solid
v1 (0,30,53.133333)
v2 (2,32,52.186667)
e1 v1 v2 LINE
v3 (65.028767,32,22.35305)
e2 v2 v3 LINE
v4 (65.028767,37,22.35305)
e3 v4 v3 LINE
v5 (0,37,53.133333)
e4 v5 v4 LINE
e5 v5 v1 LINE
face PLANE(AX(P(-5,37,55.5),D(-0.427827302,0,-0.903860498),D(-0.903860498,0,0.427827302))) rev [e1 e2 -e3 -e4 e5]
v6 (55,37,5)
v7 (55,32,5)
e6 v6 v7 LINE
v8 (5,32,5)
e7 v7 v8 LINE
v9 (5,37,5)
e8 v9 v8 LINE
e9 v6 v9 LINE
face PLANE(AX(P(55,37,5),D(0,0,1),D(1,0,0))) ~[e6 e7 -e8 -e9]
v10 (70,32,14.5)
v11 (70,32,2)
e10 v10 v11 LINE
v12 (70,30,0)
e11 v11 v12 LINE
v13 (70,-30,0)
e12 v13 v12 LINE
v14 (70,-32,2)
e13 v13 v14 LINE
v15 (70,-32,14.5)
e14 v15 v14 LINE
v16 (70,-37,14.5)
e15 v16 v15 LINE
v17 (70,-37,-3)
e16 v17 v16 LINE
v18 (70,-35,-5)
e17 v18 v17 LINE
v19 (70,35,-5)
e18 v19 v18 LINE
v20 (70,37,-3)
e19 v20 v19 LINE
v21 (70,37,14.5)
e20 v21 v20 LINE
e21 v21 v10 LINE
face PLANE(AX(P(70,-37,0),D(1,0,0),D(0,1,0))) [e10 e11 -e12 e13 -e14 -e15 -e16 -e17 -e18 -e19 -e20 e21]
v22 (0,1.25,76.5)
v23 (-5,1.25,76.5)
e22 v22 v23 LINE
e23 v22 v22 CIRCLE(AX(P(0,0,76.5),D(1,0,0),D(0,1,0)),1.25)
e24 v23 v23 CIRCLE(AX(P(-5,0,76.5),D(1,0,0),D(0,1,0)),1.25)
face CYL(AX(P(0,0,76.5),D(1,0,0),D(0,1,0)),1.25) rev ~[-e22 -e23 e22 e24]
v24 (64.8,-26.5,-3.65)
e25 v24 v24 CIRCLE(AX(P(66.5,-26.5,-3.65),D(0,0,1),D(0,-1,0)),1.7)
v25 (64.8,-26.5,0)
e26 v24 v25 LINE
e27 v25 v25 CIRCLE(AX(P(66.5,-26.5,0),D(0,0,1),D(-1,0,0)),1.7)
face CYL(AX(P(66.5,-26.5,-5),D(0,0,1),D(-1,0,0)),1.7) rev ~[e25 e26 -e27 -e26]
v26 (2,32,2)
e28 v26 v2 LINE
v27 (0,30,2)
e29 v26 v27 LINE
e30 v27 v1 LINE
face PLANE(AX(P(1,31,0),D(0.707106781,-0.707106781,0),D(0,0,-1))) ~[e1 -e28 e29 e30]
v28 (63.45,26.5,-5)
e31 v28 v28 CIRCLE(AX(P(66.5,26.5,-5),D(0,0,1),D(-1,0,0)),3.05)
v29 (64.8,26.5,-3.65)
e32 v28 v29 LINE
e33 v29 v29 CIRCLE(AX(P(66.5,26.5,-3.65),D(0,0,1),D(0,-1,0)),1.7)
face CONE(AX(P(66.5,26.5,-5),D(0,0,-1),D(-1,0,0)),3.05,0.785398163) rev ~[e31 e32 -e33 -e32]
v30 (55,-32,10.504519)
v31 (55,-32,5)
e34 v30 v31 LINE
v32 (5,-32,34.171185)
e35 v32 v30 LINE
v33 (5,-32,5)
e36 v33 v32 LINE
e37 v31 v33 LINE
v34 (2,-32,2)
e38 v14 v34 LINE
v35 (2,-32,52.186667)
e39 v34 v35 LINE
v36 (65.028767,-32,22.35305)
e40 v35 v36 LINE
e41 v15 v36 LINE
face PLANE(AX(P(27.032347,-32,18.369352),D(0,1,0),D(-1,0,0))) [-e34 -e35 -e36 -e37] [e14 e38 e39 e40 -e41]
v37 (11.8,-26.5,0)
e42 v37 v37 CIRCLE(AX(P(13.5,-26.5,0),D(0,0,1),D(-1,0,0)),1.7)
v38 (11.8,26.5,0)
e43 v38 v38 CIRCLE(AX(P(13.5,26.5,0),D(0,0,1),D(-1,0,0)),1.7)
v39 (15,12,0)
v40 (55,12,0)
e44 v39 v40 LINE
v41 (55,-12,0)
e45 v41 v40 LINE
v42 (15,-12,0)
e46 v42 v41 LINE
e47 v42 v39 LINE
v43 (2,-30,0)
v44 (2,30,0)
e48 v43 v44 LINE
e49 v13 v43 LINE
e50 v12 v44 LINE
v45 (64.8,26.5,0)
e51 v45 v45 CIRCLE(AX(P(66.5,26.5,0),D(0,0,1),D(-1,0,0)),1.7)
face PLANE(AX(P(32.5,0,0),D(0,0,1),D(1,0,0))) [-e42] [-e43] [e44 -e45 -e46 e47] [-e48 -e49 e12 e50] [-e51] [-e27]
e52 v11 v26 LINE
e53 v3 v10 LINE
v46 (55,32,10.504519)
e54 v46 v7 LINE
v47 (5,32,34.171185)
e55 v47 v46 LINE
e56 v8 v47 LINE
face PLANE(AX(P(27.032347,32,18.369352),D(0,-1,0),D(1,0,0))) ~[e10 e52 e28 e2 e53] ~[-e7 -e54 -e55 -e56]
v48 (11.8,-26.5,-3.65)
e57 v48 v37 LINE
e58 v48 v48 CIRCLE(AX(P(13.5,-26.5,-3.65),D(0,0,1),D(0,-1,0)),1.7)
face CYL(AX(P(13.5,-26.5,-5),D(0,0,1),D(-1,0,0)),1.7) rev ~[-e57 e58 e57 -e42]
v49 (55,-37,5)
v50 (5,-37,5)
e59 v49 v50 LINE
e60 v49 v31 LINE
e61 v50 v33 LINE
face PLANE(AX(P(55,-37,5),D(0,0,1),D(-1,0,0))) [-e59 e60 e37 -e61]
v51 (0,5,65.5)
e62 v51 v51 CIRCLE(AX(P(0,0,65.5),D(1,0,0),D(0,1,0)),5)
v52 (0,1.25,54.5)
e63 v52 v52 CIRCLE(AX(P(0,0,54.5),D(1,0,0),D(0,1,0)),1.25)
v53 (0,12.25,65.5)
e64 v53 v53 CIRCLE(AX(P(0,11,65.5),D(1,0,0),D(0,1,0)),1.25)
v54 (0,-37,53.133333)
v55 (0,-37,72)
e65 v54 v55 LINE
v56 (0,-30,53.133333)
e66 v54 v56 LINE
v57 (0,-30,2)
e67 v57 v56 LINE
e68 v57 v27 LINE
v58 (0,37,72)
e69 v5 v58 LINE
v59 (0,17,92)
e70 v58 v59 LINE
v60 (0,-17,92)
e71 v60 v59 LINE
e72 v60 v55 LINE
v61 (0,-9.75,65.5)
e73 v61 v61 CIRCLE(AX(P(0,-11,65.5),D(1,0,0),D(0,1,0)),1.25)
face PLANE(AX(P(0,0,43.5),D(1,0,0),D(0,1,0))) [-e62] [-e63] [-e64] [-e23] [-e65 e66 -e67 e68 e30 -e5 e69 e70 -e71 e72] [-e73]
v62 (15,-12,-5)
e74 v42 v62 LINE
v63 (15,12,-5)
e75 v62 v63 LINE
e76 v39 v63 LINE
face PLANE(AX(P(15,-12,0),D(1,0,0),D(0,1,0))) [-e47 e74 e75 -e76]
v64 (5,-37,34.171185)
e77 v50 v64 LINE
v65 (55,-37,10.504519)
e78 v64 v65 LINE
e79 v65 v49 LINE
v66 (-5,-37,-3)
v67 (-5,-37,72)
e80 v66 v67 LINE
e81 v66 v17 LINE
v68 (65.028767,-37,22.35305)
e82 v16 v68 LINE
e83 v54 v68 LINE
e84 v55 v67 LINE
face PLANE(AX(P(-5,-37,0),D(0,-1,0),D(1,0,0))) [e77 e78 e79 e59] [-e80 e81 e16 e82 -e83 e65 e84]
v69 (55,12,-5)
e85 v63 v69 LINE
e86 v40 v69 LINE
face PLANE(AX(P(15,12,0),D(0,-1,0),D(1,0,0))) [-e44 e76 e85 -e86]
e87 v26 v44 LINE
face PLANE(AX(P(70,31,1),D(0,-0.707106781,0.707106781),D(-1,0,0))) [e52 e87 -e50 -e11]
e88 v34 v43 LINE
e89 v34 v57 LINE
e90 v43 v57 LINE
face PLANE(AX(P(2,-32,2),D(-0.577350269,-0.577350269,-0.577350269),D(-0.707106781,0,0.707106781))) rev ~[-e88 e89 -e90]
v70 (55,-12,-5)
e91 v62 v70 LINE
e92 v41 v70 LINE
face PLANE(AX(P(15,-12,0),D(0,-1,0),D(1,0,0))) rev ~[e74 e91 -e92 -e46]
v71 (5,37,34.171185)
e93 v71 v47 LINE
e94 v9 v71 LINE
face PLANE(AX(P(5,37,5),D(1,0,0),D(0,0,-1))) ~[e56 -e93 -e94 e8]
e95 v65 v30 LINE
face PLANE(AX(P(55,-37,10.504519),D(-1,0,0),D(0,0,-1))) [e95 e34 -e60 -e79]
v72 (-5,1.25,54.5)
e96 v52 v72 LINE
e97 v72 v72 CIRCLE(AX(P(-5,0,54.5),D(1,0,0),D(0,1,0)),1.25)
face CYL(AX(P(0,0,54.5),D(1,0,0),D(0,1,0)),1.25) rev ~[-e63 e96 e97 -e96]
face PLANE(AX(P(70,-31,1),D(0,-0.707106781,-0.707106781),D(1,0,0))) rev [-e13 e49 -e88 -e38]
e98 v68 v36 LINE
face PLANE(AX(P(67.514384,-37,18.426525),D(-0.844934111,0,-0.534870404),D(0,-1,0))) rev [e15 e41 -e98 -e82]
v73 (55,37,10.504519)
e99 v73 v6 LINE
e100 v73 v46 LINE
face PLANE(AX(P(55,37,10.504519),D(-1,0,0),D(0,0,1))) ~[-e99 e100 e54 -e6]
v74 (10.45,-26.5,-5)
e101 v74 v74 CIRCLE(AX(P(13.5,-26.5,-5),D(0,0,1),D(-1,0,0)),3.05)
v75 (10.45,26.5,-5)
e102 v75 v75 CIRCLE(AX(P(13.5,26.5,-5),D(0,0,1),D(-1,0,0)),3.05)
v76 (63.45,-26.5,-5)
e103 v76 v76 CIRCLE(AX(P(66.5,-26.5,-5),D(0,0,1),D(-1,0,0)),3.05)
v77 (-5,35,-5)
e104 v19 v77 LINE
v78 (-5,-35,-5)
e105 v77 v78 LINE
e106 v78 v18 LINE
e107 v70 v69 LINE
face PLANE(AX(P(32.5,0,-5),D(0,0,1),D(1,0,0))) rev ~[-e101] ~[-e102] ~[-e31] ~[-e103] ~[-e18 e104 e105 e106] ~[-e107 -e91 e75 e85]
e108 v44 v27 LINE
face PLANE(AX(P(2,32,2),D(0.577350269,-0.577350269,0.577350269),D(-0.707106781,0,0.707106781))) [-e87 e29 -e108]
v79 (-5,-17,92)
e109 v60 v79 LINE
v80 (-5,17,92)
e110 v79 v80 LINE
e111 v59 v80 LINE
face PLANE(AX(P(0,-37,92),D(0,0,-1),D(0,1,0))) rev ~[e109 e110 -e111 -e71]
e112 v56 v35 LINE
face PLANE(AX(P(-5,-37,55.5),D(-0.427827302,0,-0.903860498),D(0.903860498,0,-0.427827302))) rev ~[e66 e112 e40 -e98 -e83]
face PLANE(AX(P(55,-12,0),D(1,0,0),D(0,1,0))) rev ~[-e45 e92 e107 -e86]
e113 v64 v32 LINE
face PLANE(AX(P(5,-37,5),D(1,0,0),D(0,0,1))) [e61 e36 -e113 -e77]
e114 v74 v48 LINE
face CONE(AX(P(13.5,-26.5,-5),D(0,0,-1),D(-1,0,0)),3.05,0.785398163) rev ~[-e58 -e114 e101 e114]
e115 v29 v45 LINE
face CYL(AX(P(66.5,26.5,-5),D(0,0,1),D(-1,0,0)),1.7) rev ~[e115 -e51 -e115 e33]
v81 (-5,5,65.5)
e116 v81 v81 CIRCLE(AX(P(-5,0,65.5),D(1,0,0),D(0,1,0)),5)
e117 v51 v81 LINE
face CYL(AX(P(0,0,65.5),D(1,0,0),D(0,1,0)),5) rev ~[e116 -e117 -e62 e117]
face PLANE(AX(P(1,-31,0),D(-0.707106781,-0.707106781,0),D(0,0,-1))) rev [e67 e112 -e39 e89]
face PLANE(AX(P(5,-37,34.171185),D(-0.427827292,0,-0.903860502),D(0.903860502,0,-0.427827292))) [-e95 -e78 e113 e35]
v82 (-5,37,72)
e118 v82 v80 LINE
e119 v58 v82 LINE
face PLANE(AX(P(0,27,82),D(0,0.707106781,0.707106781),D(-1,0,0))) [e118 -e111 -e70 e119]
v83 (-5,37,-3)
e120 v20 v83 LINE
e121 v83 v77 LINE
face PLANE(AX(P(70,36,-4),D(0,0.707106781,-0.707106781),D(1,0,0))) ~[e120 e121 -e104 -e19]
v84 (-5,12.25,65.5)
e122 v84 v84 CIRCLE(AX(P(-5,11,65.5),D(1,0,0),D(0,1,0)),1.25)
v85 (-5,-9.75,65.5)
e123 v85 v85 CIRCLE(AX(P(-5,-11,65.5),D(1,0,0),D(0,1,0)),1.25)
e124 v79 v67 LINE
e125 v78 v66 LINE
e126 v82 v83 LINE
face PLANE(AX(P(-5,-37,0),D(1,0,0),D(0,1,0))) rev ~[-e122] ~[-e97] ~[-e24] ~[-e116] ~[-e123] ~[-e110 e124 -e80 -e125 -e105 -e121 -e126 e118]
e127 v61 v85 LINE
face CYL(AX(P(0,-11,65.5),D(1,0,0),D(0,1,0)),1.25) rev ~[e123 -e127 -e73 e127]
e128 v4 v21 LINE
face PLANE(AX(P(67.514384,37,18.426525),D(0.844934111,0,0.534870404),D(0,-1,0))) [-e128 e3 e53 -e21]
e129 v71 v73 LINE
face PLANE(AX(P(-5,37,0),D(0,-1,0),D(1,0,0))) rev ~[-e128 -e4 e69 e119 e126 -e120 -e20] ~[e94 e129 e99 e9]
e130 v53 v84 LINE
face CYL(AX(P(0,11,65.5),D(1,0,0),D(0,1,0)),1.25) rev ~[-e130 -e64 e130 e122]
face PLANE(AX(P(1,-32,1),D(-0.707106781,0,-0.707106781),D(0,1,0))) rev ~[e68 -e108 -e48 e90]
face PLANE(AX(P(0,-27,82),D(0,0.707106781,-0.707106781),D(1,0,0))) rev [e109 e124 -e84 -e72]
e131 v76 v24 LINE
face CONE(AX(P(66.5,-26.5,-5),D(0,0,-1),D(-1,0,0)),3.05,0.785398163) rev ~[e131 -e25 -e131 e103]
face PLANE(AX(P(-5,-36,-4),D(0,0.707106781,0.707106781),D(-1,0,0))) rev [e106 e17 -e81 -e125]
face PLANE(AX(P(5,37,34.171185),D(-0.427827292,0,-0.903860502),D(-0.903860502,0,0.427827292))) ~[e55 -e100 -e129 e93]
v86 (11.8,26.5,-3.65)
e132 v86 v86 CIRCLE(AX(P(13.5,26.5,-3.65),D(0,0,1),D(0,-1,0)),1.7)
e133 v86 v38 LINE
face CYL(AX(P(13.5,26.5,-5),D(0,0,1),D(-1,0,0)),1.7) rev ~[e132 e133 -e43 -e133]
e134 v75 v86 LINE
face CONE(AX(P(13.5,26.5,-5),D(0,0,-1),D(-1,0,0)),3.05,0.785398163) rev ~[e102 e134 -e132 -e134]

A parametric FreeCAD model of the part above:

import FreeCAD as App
import Part
import Sketcher

V = App.Vector
Q = App.Units.Quantity


def edges_at(feature, points):
    """Names of the edges that pass closest to the given points."""
    edges = feature.Shape.Edges
    near = lambda p: min(range(len(edges)), key=lambda i: edges[i].distToShape(Part.Vertex(*p))[0])
    return sorted({f"Edge{near(p) + 1}" for p in points})


def add_polygon(sketch, points):
    """Adds a closed chain of lines whose ends are joined by coincident constraints."""
    first, n = sketch.GeometryCount, len(points)
    for a, b in zip(points, points[1:] + points[:1]):
        sketch.addGeometry(Part.LineSegment(App.Vector(*a, 0), App.Vector(*b, 0)), False)
    for i in range(n):
        sketch.addConstraint(Sketcher.Constraint("Coincident", first + i, 2, first + (i + 1) % n, 1))

doc = App.newDocument("Part")
body = doc.addObject("PartDesign::Body", "Body")

sketch1 = doc.addObject("Sketcher::SketchObject", "Sketch")
body.addObject(sketch1)
sketch1.AttachmentSupport = (doc.XY_Plane, [""])
sketch1.MapMode = "FlatFace"
add_polygon(sketch1, [(-5, 37), (-5, -37), (70, -37), (70, 37)])
add_polygon(sketch1, [(55, -12), (15, -12), (15, 12), (55, 12)])
sketch1.addConstraint([
    Sketcher.Constraint("Vertical", 0),
    Sketcher.Constraint("Horizontal", 1),
    Sketcher.Constraint("Vertical", 2),
    Sketcher.Constraint("Horizontal", 3),
    Sketcher.Constraint("Horizontal", 4),
    Sketcher.Constraint("Vertical", 5),
    Sketcher.Constraint("Horizontal", 6),
    Sketcher.Constraint("Vertical", 7),
    Sketcher.Constraint("DistanceX", 1, 1, 1, 2, Q("75 mm")),
    Sketcher.Constraint("DistanceX", 4, 2, 4, 1, Q("40 mm")),
    Sketcher.Constraint("DistanceY", 0, 2, 0, 1, Q("74 mm")),
    Sketcher.Constraint("DistanceY", 5, 1, 5, 2, Q("24 mm")),
    Sketcher.Constraint("DistanceX", 0, 2, -1, 1, Q("5 mm")),
    Sketcher.Constraint("DistanceY", 0, 2, -1, 1, Q("37 mm")),
    Sketcher.Constraint("DistanceX", -1, 1, 4, 2, Q("15 mm")),
    Sketcher.Constraint("DistanceY", 4, 2, -1, 1, Q("12 mm")),
])
pad1 = doc.addObject("PartDesign::Pad", "Pad")
body.addObject(pad1)
pad1.Profile = sketch1
pad1.Length = 5
pad1.Reversed = True

sketch2 = doc.addObject("Sketcher::SketchObject", "Sketch001")
body.addObject(sketch2)
sketch2.AttachmentSupport = (doc.YZ_Plane, [""])
sketch2.MapMode = "FlatFace"
add_polygon(sketch2, [(-37, 92), (-37, -5), (37, -5), (37, 92)])
sketch2.addConstraint([
    Sketcher.Constraint("Vertical", 0),
    Sketcher.Constraint("Horizontal", 1),
    Sketcher.Constraint("Vertical", 2),
    Sketcher.Constraint("Horizontal", 3),
    Sketcher.Constraint("DistanceX", 1, 1, 1, 2, Q("74 mm")),
    Sketcher.Constraint("DistanceY", 0, 2, 0, 1, Q("97 mm")),
    Sketcher.Constraint("DistanceX", 0, 2, -1, 1, Q("37 mm")),
    Sketcher.Constraint("DistanceY", 0, 2, -1, 1, Q("5 mm")),
])
pad2 = doc.addObject("PartDesign::Pad", "Pad001")
body.addObject(pad2)
pad2.Profile = sketch2
pad2.Length = 5
pad2.Reversed = True

sketch3 = doc.addObject("Sketcher::SketchObject", "Sketch002")
body.addObject(sketch3)
sketch3.AttachmentSupport = (doc.XZ_Plane, [""])
sketch3.MapMode = "FlatFace"
sketch3.AttachmentOffset = App.Placement(V(0, 0, 37), App.Rotation())
add_polygon(sketch3, [(70, 20), (-5, 56), (-5, -5), (70, -5)])
add_polygon(sketch3, [(5, 34), (55, 11), (55, 5), (5, 5)])
sketch3.addConstraint([
    Sketcher.Constraint("Vertical", 1),
    Sketcher.Constraint("Horizontal", 2),
    Sketcher.Constraint("Vertical", 3),
    Sketcher.Constraint("Vertical", 5),
    Sketcher.Constraint("Horizontal", 6),
    Sketcher.Constraint("Vertical", 7),
    Sketcher.Constraint("Symmetric", 1, 2, 6, 2, -1, 1),
    Sketcher.Constraint("Parallel", 0, 4),
    Sketcher.Constraint("DistanceX", 2, 1, 2, 2, Q("75 mm")),
    Sketcher.Constraint("DistanceX", 6, 2, 6, 1, Q("50 mm")),
    Sketcher.Constraint("DistanceY", 3, 1, 3, 2, Q("25 mm")),
    Sketcher.Constraint("DistanceY", 1, 2, 1, 1, Q("60.5 mm")),
    Sketcher.Constraint("DistanceX", 0, 2, -1, 1, Q("5 mm")),
    Sketcher.Constraint("DistanceY", 1, 2, -1, 1, Q("5 mm")),
    Sketcher.Constraint("DistanceY", 5, 2, 5, 1, Q("5.504519 mm")),
])
pad3 = doc.addObject("PartDesign::Pad", "Pad002")
body.addObject(pad3)
pad3.Profile = sketch3
pad3.Length = 5
pad3.Reversed = True
doc.recompute()

mirrored = doc.addObject("PartDesign::Mirrored", "Mirrored")
body.addObject(mirrored)
mirrored.Originals = [pad3]
mirrored.MirrorPlane = (doc.XZ_Plane, [""])
body.Tip = mirrored

sketch4 = doc.addObject("Sketcher::SketchObject", "Sketch003")
body.addObject(sketch4)
sketch4.AttachmentSupport = (doc.XY_Plane, [""])
sketch4.MapMode = "FlatFace"
sketch4.AttachmentOffset = App.Placement(V(0, 0, -5), App.Rotation())
sketch4.addGeometry([
    Part.Circle(V(66.5, 26.5, 0), V(0, 0, 1), 1.7),
    Part.Circle(V(13.5, 26.5, 0), V(0, 0, 1), 1.7),
    Part.Circle(V(13.5, -26.5, 0), V(0, 0, 1), 1.7),
    Part.Circle(V(66.5, -26.5, 0), V(0, 0, 1), 1.7),
], False)
sketch4.addConstraint([
    Sketcher.Constraint("Equal", 0, 1),
    Sketcher.Constraint("Equal", 1, 2),
    Sketcher.Constraint("Equal", 2, 3),
    Sketcher.Constraint("Symmetric", 1, 3, 2, 3, -1),
    Sketcher.Constraint("Symmetric", 0, 3, 3, 3, -1),
    Sketcher.Constraint("Horizontal", 0, 3, 1, 3),
    Sketcher.Constraint("Diameter", 0, Q("3.4 mm")),
    Sketcher.Constraint("DistanceX", 1, 3, 0, 3, Q("53 mm")),
    Sketcher.Constraint("DistanceY", 2, 3, 1, 3, Q("53 mm")),
    Sketcher.Constraint("DistanceX", -1, 1, 0, 3, Q("66.5 mm")),
])
doc.recompute()
hole = doc.addObject("PartDesign::Hole", "Hole")
body.addObject(hole)
hole.Profile = sketch4
hole.ThreadType = "None"
hole.Diameter = 3.4
hole.DepthType = "ThroughAll"
hole.HoleCutType = "Countersink"
hole.HoleCutDiameter = 6.1
hole.HoleCutCountersinkAngle = 90
hole.Reversed = True

sketch5 = doc.addObject("Sketcher::SketchObject", "Sketch004")
body.addObject(sketch5)
sketch5.AttachmentSupport = (doc.YZ_Plane, [""])
sketch5.MapMode = "FlatFace"
sketch5.addGeometry([
    Part.Circle(V(0, 65.5, 0), V(0, 0, 1), 5),
    Part.Circle(V(0, 76.5, 0), V(0, 0, 1), 1.2),
    Part.Circle(V(11, 65.5, 0), V(0, 0, 1), 1.2),
    Part.Circle(V(0, 54.5, 0), V(0, 0, 1), 1.2),
    Part.Circle(V(-11, 65.5, 0), V(0, 0, 1), 1.2),
], False)
sketch5.addConstraint([
    Sketcher.Constraint("Equal", 1, 2),
    Sketcher.Constraint("Equal", 2, 3),
    Sketcher.Constraint("Equal", 3, 4),
    Sketcher.Constraint("Symmetric", 2, 3, 4, 3, -2),
    Sketcher.Constraint("PointOnObject", 0, 3, -2),
    Sketcher.Constraint("PointOnObject", 1, 3, -2),
    Sketcher.Constraint("PointOnObject", 3, 3, -2),
    Sketcher.Constraint("Horizontal", 0, 3, 2, 3),
    Sketcher.Constraint("Diameter", 0, Q("10 mm")),
    Sketcher.Constraint("Diameter", 1, Q("2.5 mm")),
    Sketcher.Constraint("DistanceX", -1, 1, 2, 3, Q("11 mm")),
    Sketcher.Constraint("DistanceY", 0, 3, 1, 3, Q("11 mm")),
    Sketcher.Constraint("DistanceY", 3, 3, 0, 3, Q("11 mm")),
    Sketcher.Constraint("DistanceY", -1, 1, 0, 3, Q("65.5 mm")),
])
pocket1 = doc.addObject("PartDesign::Pocket", "Pocket")
body.addObject(pocket1)
pocket1.Profile = sketch5
pocket1.Type = "ThroughAll"
doc.recompute()

chamfer = doc.addObject("PartDesign::Chamfer", "Chamfer")
body.addObject(chamfer)
chamfer.Base = (pocket1, edges_at(pocket1, [
    (0, 0, 0),
    (35, 32, 0),
    (35, -32, 0),
    (0, -32, 26.567),
    (0, 32, 26.567),
    (32.5, -37, -5),
    (32.5, 37, -5),
]))
chamfer.Size = 2
doc.recompute()

chamfer2 = doc.addObject("PartDesign::Chamfer", "Chamfer001")
body.addObject(chamfer2)
chamfer2.Base = (chamfer, edges_at(chamfer, [(70, -34.5, 20), (70, 34.5, 20)]))
chamfer2.Size = 5.5
doc.recompute()

chamfer3 = doc.addObject("PartDesign::Chamfer", "Chamfer002")
body.addObject(chamfer3)
chamfer3.Base = (chamfer2, edges_at(chamfer2, [(-2.5, -37, 92), (-2.5, 37, 92)]))
chamfer3.Size = 20

doc.recompute()
